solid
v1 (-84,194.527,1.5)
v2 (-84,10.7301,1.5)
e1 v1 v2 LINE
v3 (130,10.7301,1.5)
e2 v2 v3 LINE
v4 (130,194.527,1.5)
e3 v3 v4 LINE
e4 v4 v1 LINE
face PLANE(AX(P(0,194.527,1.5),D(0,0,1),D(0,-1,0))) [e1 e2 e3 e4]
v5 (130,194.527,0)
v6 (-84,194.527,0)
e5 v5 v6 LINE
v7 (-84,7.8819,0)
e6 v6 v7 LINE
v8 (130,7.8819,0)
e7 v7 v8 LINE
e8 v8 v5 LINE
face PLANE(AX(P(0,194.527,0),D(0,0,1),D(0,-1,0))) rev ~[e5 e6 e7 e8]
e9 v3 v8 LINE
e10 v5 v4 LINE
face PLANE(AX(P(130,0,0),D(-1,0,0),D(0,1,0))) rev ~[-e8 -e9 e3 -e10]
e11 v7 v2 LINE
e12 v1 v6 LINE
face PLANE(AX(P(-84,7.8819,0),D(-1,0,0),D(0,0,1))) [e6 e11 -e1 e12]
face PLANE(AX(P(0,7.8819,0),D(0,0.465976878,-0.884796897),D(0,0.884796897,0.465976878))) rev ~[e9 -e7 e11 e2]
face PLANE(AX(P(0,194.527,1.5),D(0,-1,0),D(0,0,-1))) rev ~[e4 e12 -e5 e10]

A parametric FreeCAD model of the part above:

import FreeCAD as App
import Part
import Sketcher
from FreeCAD import Vector
Q = App.Units.Quantity

doc = App.newDocument("Part")
params = doc.addObject("Spreadsheet::Sheet", "Params")
for row, (alias, value) in enumerate([
    ("sketch1_width", "130 mm"),
    ("sketch1_height", "240 mm"),
    ("pad1_length", "1.5 mm"),
    ("sketch2_height", "1.5 mm"),
    ("sketch2_width", "10.73 mm"),
    ("sketch3_width", "130 mm"),
    ("pocket2_length", "10 mm"),
    ("sketch4_height", "1.5 mm"),
    ("pad2_length", "84 mm"),
], start=1):
    params.set(f"A{row}", alias)
    params.set(f"B{row}", "=" + value)
    params.setAlias(f"B{row}", alias)

body = doc.addObject("PartDesign::Body", "Body")

sketch1 = doc.addObject("Sketcher::SketchObject", "Sketch")
body.addObject(sketch1)
sketch1.AttachmentSupport = (doc.XY_Plane, [""])
sketch1.MapMode = "FlatFace"
sketch1.addGeometry([
    Part.LineSegment(Vector(0, 240, 0), Vector(0, 0, 0)),
    Part.LineSegment(Vector(0, 0, 0), Vector(130, 0, 0)),
    Part.LineSegment(Vector(130, 0, 0), Vector(130, 240, 0)),
    Part.LineSegment(Vector(130, 240, 0), Vector(0, 240, 0)),
], False)
sketch1.addConstraint([
    Sketcher.Constraint("Coincident", 0, 2, 1, 1),
    Sketcher.Constraint("Coincident", 1, 2, 2, 1),
    Sketcher.Constraint("Coincident", 2, 2, 3, 1),
    Sketcher.Constraint("Coincident", 3, 2, 0, 1),
    Sketcher.Constraint("Vertical", 0),
    Sketcher.Constraint("Horizontal", 1),
    Sketcher.Constraint("Vertical", 2),
    Sketcher.Constraint("Horizontal", 3),
    Sketcher.Constraint("Coincident", 0, 2, -1, 1),
    Sketcher.Constraint("DistanceX", 1, 1, 1, 2, Q("130 mm")),
    Sketcher.Constraint("DistanceY", 0, 2, 0, 1, Q("240 mm")),
])
sketch1.setExpression("Constraints[9]", "Params.sketch1_width")
sketch1.setExpression("Constraints[10]", "Params.sketch1_height")
pad1 = doc.addObject("PartDesign::Pad", "Pad")
body.addObject(pad1)
pad1.Profile = sketch1
pad1.setExpression("Length", "Params.pad1_length")

sketch2 = doc.addObject("Sketcher::SketchObject", "Sketch001")
body.addObject(sketch2)
sketch2.AttachmentSupport = (doc.YZ_Plane, [""])
sketch2.MapMode = "FlatFace"
sketch2.AttachmentOffset = App.Placement(Vector(0, 0, 130), App.Rotation())
sketch2.addGeometry([
    Part.LineSegment(Vector(7.9, 0, 0), Vector(10.7, 1.5, 0)),
    Part.LineSegment(Vector(10.7, 1.5, 0), Vector(0, 1.5, 0)),
    Part.LineSegment(Vector(0, 1.5, 0), Vector(0, 0, 0)),
    Part.LineSegment(Vector(0, 0, 0), Vector(7.9, 0, 0)),
], False)
sketch2.addConstraint([
    Sketcher.Constraint("Coincident", 0, 2, 1, 1),
    Sketcher.Constraint("Coincident", 1, 2, 2, 1),
    Sketcher.Constraint("Coincident", 2, 2, 3, 1),
    Sketcher.Constraint("Coincident", 3, 2, 0, 1),
    Sketcher.Constraint("Horizontal", 1),
    Sketcher.Constraint("Vertical", 2),
    Sketcher.Constraint("Horizontal", 3),
    Sketcher.Constraint("Coincident", 2, 2, -1, 1),
    Sketcher.Constraint("DistanceY", 2, 2, 2, 1, Q("1.5 mm")),
    Sketcher.Constraint("DistanceX", 1, 2, 1, 1, Q("10.73 mm")),
    Sketcher.Constraint("DistanceX", 3, 1, 3, 2, Q("7.882 mm")),
])
sketch2.setExpression("Constraints[8]", "Params.sketch2_height")
sketch2.setExpression("Constraints[9]", "Params.sketch2_width")
pocket1 = doc.addObject("PartDesign::Pocket", "Pocket")
body.addObject(pocket1)
pocket1.Profile = sketch2
pocket1.Type = "ThroughAll"

sketch3 = doc.addObject("Sketcher::SketchObject", "Sketch002")
body.addObject(sketch3)
sketch3.AttachmentSupport = (doc.XY_Plane, [""])
sketch3.MapMode = "FlatFace"
sketch3.addGeometry([
    Part.LineSegment(Vector(130, 240, 0), Vector(130, 195, 0)),
    Part.LineSegment(Vector(130, 195, 0), Vector(0, 195, 0)),
    Part.LineSegment(Vector(0, 195, 0), Vector(0, 240, 0)),
    Part.LineSegment(Vector(0, 240, 0), Vector(130, 240, 0)),
], False)
sketch3.addConstraint([
    Sketcher.Constraint("Coincident", 0, 2, 1, 1),
    Sketcher.Constraint("Coincident", 1, 2, 2, 1),
    Sketcher.Constraint("Coincident", 2, 2, 3, 1),
    Sketcher.Constraint("Coincident", 3, 2, 0, 1),
    Sketcher.Constraint("Vertical", 0),
    Sketcher.Constraint("Horizontal", 1),
    Sketcher.Constraint("Vertical", 2),
    Sketcher.Constraint("Horizontal", 3),
    Sketcher.Constraint("PointOnObject", 1, 2, -2),
    Sketcher.Constraint("DistanceX", 1, 2, 1, 1, Q("130 mm")),
    Sketcher.Constraint("DistanceY", -1, 1, 2, 2, Q("240 mm")),
    Sketcher.Constraint("DistanceY", 0, 2, 0, 1, Q("45.473 mm")),
])
sketch3.setExpression("Constraints[9]", "Params.sketch3_width")
pocket2 = doc.addObject("PartDesign::Pocket", "Pocket001")
body.addObject(pocket2)
pocket2.Profile = sketch3
pocket2.setExpression("Length", "Params.pocket2_length")
pocket2.Reversed = True

sketch4 = doc.addObject("Sketcher::SketchObject", "Sketch003")
body.addObject(sketch4)
sketch4.AttachmentSupport = (doc.YZ_Plane, [""])
sketch4.MapMode = "FlatFace"
sketch4.addGeometry([
    Part.LineSegment(Vector(10.7, 1.5, 0), Vector(194.5, 1.5, 0)),
    Part.LineSegment(Vector(194.5, 1.5, 0), Vector(194.5, 0, 0)),
    Part.LineSegment(Vector(194.5, 0, 0), Vector(7.9, 0, 0)),
    Part.LineSegment(Vector(7.9, 0, 0), Vector(10.7, 1.5, 0)),
], False)
sketch4.addConstraint([
    Sketcher.Constraint("Coincident", 0, 2, 1, 1),
    Sketcher.Constraint("Coincident", 1, 2, 2, 1),
    Sketcher.Constraint("Coincident", 2, 2, 3, 1),
    Sketcher.Constraint("Coincident", 3, 2, 0, 1),
    Sketcher.Constraint("Horizontal", 0),
    Sketcher.Constraint("Vertical", 1),
    Sketcher.Constraint("Horizontal", 2),
    Sketcher.Constraint("PointOnObject", 1, 2, -1),
    Sketcher.Constraint("DistanceY", 1, 2, 1, 1, Q("1.5 mm")),
    Sketcher.Constraint("DistanceX", 0, 1, 0, 2, Q("183.797 mm")),
    Sketcher.Constraint("DistanceX", 2, 2, 2, 1, Q("186.645 mm")),
    Sketcher.Constraint("DistanceX", -1, 1, 3, 2, Q("10.73 mm")),
])
sketch4.setExpression("Constraints[8]", "Params.sketch4_height")
pad2 = doc.addObject("PartDesign::Pad", "Pad001")
body.addObject(pad2)
pad2.Profile = sketch4
pad2.setExpression("Length", "Params.pad2_length")
pad2.Reversed = True

sketch5 = doc.addObject("Sketcher::SketchObject", "Sketch004")
body.addObject(sketch5)
sketch5.AttachmentSupport = (doc.YZ_Plane, [""])
sketch5.MapMode = "FlatFace"
sketch5.AttachmentOffset = App.Placement(Vector(0, 0, 130), App.Rotation())
sketch5.addGeometry([
    Part.LineSegment(Vector(202, 0, 0), Vector(159, -23, 0)),
    Part.LineSegment(Vector(159, -23, 0), Vector(169, -42, 0)),
    Part.LineSegment(Vector(169, -42, 0), Vector(212, -18, 0)),
    Part.LineSegment(Vector(212, -18, 0), Vector(202, 0, 0)),
], False)
sketch5.addConstraint([
    Sketcher.Constraint("Coincident", 0, 2, 1, 1),
    Sketcher.Constraint("Coincident", 1, 2, 2, 1),
    Sketcher.Constraint("Coincident", 2, 2, 3, 1),
    Sketcher.Constraint("Coincident", 3, 2, 0, 1),
    Sketcher.Constraint("Perpendicular", 0, 1),
    Sketcher.Constraint("Perpendicular", 1, 2),
    Sketcher.Constraint("Perpendicular", 2, 3),
    Sketcher.Constraint("Angle", 0, Q("-151.63 deg")),
    Sketcher.Constraint("DistanceX", 0, 2, 2, 2, Q("53.81 mm")),
    Sketcher.Constraint("DistanceY", 2, 2, -1, 1, Q("18.477 mm")),
    Sketcher.Constraint("DistanceX", -1, 1, 3, 2, Q("202.278 mm")),
    Sketcher.Constraint("DistanceY", 1, 2, 0, 2, Q("18.898 mm")),
])
pocket3 = doc.addObject("PartDesign::Pocket", "Pocket002")
body.addObject(pocket3)
pocket3.Profile = sketch5
pocket3.Type = "ThroughAll"

doc.recompute()
